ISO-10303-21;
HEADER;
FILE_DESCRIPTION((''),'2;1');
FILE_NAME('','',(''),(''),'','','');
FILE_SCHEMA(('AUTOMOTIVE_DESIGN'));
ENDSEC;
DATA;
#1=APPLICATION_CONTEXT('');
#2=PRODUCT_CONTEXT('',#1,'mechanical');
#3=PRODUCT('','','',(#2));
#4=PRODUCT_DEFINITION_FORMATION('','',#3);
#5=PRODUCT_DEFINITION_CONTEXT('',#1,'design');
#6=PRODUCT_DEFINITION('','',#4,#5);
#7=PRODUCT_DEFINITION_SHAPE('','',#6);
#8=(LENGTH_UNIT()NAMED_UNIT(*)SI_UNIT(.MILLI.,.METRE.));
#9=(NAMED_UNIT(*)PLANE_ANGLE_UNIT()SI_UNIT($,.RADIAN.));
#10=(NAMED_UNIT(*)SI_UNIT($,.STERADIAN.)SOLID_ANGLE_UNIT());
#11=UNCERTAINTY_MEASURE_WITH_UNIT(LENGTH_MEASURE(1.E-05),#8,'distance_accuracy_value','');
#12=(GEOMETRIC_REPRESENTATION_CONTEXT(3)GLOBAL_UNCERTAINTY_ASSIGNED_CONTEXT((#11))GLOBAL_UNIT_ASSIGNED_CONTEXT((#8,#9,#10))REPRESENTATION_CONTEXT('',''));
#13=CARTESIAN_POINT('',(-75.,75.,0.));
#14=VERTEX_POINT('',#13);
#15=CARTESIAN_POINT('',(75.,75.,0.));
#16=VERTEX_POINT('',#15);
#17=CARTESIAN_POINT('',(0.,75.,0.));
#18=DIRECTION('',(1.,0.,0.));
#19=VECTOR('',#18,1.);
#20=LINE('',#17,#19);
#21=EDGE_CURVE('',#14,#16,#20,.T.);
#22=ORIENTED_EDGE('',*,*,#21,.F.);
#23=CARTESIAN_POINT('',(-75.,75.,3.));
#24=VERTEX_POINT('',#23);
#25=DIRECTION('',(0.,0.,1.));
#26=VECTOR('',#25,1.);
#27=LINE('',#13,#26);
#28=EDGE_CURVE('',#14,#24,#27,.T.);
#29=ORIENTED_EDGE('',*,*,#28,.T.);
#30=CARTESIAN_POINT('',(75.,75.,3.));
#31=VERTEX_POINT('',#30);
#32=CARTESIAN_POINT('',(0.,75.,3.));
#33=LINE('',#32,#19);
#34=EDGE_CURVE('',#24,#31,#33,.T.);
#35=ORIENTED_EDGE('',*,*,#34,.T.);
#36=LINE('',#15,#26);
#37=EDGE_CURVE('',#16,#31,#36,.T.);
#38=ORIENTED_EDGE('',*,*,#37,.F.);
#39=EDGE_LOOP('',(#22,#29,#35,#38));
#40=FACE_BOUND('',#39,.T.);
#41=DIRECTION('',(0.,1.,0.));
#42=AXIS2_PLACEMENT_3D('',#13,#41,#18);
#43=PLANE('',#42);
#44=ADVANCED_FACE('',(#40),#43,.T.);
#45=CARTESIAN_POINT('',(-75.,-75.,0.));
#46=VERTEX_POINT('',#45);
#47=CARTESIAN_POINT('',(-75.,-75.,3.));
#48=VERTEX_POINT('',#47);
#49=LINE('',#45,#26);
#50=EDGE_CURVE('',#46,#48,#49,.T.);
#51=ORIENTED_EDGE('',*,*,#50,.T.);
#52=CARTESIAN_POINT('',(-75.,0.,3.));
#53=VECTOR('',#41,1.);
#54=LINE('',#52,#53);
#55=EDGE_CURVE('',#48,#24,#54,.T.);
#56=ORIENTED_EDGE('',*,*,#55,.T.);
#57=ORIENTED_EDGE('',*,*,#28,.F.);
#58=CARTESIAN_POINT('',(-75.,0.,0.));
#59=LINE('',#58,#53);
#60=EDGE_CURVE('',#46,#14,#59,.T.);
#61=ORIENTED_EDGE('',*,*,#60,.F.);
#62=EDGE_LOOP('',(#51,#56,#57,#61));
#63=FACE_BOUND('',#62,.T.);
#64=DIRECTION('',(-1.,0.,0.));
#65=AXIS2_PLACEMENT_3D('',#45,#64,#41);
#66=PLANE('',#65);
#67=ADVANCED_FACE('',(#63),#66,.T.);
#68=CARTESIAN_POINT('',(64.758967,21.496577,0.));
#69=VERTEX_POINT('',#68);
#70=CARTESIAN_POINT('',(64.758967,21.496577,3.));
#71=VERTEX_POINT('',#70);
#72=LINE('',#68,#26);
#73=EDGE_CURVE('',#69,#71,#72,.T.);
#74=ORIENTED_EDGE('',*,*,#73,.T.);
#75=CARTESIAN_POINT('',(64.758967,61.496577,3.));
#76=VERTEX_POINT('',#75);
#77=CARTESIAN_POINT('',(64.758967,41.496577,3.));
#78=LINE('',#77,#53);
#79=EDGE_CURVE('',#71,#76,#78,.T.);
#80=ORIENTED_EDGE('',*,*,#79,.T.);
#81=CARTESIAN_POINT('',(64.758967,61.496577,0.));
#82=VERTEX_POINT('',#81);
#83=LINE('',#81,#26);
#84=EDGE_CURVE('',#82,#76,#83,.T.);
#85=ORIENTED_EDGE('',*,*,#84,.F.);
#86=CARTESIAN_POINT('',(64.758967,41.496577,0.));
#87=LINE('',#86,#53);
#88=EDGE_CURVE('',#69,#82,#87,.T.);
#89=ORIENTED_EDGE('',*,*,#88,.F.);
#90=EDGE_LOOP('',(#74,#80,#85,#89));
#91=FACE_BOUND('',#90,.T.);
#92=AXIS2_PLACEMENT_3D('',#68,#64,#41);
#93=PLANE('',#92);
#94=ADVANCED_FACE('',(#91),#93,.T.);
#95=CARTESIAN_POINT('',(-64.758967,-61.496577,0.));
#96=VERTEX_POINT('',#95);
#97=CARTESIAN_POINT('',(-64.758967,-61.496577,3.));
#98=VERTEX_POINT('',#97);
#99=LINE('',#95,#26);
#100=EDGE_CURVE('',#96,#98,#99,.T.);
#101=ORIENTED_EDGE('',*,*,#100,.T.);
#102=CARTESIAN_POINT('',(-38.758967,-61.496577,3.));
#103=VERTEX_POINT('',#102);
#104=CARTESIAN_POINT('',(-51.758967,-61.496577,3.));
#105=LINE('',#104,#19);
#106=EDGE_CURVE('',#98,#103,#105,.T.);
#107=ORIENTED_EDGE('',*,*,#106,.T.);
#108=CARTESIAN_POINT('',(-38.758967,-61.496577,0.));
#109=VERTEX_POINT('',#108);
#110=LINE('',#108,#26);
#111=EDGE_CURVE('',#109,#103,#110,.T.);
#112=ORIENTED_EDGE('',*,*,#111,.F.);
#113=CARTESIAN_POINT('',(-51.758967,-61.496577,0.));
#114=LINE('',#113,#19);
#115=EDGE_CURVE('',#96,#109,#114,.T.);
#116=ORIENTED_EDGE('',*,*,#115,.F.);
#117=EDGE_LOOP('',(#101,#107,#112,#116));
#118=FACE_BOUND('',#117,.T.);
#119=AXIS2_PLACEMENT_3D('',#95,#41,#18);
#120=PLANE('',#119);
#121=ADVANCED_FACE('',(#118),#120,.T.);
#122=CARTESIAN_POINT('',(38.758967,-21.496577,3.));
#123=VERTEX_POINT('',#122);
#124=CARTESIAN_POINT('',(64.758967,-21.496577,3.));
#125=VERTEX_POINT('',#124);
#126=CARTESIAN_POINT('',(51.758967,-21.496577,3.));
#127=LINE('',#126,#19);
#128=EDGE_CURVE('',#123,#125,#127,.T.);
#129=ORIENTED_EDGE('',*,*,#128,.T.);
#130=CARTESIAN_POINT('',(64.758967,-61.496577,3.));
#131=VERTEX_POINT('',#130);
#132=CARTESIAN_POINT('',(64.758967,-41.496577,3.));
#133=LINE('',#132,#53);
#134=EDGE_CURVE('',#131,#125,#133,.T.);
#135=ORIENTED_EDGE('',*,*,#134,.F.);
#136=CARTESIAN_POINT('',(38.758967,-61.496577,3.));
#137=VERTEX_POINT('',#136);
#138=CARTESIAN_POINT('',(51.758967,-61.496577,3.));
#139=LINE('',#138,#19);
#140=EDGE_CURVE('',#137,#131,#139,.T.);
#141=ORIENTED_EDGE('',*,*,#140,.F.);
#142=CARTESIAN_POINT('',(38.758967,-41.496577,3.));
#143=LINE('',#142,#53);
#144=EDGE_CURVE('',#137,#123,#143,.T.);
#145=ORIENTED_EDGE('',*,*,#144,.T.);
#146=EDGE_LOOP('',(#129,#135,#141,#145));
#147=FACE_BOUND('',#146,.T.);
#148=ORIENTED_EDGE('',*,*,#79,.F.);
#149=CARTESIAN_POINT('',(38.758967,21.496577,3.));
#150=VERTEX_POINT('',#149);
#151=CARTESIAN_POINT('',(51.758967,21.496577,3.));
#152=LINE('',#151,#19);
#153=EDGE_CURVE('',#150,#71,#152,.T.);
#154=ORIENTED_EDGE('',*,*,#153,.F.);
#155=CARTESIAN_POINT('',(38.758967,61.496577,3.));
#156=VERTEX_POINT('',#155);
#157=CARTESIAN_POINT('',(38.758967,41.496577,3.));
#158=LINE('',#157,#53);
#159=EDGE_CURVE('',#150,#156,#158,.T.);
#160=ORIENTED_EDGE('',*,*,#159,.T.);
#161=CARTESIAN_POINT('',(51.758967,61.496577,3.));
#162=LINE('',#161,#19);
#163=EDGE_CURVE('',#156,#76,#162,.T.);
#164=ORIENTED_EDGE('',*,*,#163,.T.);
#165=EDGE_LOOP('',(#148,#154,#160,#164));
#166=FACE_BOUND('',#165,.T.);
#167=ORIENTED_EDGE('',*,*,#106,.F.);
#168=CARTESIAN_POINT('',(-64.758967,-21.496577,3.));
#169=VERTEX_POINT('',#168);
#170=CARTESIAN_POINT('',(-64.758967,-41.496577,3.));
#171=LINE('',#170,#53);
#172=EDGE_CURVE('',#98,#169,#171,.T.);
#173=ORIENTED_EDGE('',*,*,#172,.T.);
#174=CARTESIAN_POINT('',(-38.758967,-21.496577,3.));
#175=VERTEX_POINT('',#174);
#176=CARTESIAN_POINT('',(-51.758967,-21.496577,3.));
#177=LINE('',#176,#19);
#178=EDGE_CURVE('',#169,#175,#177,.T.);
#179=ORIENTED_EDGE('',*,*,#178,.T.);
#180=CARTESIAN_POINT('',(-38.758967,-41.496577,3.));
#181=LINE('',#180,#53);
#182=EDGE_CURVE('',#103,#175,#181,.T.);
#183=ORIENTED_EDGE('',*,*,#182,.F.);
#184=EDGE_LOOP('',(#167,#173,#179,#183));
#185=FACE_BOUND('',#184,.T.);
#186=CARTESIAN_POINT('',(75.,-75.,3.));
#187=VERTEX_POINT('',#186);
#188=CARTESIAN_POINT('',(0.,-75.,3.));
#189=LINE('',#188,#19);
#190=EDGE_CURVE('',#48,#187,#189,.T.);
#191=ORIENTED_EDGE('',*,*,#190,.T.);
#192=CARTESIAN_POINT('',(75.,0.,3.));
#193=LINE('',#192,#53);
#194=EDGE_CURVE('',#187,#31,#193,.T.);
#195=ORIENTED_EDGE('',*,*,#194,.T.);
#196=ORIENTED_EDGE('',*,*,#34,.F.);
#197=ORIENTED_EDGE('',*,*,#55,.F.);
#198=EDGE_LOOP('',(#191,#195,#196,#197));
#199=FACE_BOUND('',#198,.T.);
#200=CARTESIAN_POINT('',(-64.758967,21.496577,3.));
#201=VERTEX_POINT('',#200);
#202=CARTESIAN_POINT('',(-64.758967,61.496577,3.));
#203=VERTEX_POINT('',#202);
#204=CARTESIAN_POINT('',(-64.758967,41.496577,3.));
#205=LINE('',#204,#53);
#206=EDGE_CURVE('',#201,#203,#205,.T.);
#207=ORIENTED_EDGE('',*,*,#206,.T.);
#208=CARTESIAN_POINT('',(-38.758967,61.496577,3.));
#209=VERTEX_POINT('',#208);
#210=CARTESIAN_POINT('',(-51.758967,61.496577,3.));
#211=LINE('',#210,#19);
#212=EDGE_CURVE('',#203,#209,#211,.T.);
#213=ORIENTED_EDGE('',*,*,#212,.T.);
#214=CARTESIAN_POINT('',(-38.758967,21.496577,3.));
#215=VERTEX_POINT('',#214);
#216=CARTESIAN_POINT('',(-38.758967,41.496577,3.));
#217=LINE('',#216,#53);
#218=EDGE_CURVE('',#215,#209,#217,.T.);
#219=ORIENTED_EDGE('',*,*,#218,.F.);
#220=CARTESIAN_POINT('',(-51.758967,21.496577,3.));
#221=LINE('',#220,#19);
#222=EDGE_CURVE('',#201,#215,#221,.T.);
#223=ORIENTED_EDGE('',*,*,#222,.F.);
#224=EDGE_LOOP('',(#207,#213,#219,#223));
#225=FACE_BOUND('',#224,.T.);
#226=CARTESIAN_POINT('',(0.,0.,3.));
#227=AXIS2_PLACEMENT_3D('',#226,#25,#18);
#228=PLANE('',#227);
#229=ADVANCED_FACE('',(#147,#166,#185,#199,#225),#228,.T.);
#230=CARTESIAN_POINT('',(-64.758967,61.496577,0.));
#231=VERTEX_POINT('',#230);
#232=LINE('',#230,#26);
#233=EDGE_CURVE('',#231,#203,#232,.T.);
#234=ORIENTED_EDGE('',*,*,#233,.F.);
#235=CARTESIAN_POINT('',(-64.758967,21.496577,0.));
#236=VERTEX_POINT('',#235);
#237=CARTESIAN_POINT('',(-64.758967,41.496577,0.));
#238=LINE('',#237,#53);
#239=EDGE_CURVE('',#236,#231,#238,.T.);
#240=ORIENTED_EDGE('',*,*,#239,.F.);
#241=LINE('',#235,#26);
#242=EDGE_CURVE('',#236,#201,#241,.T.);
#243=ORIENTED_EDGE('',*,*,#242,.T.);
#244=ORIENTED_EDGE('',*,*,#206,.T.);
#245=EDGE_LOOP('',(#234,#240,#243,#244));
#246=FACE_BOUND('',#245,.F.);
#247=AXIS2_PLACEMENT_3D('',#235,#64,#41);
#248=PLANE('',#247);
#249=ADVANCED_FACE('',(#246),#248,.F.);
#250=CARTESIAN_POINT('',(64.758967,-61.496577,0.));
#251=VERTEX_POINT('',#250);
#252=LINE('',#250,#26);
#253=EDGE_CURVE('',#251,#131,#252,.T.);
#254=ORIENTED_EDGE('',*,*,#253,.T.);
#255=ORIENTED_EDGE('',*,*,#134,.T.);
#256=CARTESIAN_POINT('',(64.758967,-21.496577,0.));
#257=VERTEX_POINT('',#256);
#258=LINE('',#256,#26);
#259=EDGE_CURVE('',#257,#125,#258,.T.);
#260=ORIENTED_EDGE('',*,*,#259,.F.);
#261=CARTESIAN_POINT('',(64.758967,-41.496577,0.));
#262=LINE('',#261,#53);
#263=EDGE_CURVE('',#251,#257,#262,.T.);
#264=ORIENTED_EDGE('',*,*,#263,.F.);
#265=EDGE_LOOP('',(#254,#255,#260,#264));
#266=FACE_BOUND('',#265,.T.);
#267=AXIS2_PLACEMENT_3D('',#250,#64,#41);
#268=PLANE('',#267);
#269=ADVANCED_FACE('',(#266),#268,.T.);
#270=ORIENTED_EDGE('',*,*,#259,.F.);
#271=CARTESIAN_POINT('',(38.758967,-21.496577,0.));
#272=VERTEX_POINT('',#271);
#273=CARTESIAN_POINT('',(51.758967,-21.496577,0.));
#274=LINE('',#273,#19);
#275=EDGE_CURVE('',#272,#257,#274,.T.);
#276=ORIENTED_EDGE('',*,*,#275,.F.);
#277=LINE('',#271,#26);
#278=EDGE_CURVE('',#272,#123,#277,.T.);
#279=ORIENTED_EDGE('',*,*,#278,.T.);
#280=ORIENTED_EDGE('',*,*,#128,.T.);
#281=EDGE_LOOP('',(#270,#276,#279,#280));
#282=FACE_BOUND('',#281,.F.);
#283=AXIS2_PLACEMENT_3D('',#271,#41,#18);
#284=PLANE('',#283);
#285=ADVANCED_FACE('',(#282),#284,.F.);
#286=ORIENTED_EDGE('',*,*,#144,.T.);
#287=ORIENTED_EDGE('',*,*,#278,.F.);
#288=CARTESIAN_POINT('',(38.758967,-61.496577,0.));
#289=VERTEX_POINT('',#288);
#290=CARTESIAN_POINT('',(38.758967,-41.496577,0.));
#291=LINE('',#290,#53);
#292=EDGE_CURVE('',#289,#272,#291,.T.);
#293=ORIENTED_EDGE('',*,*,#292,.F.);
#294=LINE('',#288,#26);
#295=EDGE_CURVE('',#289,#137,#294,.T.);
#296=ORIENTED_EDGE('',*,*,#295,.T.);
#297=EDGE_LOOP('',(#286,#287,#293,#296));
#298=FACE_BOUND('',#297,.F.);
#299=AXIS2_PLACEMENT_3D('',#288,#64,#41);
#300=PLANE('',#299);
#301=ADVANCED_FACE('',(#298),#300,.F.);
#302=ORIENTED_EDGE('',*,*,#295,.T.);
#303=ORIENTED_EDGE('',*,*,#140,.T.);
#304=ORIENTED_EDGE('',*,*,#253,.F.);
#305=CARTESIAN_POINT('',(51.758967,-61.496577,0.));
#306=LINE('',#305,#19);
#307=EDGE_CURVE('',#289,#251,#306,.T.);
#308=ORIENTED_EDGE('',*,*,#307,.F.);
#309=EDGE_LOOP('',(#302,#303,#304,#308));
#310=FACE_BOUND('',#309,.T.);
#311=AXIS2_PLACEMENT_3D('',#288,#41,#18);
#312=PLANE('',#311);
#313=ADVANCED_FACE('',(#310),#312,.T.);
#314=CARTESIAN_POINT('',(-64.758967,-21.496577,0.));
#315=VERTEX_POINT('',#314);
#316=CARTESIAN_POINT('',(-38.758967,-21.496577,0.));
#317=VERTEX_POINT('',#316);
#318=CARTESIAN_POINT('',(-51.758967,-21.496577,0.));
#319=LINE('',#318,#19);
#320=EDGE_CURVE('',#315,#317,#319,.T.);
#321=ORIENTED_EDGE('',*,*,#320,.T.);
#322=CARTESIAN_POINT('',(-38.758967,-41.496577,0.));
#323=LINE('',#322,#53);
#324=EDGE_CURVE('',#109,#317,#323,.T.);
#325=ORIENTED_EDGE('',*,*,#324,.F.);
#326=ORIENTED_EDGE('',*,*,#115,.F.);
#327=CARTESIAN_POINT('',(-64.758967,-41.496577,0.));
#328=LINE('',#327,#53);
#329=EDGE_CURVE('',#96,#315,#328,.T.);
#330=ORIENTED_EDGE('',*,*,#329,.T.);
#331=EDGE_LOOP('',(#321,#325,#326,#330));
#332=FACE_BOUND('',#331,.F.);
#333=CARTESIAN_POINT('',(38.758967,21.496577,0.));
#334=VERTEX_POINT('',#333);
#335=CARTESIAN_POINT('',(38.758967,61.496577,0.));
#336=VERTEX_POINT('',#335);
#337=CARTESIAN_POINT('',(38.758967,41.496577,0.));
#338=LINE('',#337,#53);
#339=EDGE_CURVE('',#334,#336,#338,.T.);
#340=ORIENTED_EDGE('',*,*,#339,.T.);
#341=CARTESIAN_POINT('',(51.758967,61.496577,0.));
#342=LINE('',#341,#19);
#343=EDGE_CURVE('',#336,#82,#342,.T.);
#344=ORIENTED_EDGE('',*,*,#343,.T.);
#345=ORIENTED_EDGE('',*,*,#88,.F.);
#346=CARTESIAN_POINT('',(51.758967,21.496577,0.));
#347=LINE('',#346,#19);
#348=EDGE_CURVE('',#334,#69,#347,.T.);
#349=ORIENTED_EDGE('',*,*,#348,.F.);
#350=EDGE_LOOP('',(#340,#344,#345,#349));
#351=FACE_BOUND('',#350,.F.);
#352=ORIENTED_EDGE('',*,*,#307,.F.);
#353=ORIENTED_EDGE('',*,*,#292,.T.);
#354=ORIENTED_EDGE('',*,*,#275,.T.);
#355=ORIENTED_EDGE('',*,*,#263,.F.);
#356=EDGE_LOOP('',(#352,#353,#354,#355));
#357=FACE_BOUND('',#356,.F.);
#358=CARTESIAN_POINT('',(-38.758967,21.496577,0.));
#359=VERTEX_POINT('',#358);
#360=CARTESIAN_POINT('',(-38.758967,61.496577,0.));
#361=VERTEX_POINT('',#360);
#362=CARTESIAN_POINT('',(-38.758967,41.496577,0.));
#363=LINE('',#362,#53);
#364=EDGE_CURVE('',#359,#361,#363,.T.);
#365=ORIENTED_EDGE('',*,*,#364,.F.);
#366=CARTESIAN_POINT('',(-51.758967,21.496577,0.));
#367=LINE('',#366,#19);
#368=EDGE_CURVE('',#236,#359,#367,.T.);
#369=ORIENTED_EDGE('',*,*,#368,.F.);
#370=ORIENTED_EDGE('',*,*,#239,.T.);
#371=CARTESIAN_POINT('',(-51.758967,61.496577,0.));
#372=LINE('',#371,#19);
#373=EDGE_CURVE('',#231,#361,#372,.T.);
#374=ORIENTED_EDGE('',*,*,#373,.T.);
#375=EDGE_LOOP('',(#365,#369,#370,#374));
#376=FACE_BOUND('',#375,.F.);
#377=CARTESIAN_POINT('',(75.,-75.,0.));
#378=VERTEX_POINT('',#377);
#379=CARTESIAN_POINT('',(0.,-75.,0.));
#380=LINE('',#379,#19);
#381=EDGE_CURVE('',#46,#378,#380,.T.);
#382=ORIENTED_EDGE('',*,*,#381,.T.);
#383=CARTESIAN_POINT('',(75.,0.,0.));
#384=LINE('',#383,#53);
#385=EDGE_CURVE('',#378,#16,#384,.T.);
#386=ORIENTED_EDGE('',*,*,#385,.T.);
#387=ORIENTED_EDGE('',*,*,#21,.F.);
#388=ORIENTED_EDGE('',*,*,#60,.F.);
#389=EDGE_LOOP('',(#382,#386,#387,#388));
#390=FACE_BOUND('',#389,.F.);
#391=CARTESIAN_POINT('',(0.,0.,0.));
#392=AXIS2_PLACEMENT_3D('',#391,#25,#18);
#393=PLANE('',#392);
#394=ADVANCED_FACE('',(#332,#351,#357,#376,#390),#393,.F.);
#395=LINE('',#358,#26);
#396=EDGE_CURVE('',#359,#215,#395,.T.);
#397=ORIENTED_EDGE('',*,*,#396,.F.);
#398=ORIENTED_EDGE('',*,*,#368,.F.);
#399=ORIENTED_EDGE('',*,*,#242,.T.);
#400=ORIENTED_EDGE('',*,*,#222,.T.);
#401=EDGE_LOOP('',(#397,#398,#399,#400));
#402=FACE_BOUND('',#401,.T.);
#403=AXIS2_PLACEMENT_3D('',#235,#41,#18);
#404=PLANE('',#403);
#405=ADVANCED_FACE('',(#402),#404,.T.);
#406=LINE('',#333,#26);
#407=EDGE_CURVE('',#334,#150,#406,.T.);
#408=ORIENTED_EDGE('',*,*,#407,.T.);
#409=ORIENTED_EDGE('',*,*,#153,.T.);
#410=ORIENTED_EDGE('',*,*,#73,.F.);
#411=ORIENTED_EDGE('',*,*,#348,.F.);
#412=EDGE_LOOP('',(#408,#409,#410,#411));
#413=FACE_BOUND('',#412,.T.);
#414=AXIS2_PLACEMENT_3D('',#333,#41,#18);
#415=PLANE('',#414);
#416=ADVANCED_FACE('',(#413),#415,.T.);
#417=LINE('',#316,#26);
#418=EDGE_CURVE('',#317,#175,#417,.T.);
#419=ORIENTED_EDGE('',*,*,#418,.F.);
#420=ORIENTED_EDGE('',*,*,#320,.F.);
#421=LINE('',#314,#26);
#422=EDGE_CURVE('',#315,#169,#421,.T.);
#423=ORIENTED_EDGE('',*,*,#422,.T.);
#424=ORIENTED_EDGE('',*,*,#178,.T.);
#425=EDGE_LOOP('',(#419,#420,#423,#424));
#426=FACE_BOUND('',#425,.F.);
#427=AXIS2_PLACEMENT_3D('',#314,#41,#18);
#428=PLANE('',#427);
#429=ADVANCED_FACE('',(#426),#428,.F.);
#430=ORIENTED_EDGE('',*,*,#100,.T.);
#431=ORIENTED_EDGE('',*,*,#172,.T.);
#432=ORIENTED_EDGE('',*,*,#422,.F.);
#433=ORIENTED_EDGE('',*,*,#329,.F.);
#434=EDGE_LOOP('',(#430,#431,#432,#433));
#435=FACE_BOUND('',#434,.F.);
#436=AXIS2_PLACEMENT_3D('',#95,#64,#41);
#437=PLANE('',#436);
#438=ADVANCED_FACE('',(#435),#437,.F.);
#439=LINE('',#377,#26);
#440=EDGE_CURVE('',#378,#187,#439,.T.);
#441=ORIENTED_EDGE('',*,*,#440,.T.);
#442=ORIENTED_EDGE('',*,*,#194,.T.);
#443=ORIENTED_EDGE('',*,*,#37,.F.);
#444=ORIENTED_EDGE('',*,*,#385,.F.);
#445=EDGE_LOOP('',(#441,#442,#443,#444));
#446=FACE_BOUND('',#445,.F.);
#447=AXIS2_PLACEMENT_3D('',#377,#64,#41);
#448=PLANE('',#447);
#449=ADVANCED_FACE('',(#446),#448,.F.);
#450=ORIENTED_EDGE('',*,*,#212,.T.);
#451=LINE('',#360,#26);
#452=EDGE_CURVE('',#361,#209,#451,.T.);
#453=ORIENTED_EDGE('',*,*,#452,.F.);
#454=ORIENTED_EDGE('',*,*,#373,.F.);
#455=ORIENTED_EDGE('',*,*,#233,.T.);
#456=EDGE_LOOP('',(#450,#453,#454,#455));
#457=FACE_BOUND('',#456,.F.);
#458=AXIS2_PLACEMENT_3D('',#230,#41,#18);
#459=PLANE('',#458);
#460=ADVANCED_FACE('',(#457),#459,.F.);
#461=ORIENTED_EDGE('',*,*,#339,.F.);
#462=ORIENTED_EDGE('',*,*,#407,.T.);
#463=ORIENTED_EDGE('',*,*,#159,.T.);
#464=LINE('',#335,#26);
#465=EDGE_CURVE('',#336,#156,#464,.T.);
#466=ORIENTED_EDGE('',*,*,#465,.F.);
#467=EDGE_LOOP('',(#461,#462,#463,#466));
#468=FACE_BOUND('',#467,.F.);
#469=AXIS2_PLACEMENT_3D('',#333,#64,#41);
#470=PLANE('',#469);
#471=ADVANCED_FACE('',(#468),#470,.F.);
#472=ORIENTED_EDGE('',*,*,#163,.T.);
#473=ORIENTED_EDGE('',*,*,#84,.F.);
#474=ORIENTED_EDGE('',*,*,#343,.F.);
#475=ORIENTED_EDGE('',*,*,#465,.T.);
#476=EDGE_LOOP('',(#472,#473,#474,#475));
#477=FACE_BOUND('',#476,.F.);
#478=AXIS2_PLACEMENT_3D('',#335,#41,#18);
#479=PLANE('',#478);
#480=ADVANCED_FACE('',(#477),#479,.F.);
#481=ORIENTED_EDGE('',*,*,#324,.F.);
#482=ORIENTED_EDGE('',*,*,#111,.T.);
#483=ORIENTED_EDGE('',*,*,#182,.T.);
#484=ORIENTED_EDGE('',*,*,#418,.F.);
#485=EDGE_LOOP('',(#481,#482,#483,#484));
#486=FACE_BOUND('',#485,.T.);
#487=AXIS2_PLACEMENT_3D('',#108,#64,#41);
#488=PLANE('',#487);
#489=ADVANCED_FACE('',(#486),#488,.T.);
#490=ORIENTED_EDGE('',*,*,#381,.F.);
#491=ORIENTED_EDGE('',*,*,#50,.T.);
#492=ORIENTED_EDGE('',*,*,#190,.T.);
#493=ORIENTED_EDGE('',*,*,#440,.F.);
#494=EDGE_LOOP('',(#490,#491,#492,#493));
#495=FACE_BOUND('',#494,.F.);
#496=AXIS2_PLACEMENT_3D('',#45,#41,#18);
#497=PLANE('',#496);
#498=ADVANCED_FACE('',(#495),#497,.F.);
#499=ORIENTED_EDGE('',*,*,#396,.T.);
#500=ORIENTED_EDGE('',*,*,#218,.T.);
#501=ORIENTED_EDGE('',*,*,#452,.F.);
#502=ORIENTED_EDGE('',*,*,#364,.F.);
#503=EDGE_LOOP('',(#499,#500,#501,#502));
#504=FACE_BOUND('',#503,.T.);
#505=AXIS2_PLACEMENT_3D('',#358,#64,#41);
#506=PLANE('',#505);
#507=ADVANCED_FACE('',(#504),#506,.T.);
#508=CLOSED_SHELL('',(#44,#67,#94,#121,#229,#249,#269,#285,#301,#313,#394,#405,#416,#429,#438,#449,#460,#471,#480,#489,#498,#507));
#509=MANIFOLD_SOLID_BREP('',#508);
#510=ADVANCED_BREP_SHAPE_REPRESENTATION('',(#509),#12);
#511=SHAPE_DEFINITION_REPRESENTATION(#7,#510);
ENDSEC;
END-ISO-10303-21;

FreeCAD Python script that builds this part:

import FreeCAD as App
import Part
import Sketcher


def add_polygon(sketch, points):
    """Adds a closed chain of lines whose ends are joined by coincident constraints."""
    first, n = sketch.GeometryCount, len(points)
    for a, b in zip(points, points[1:] + points[:1]):
        sketch.addGeometry(Part.LineSegment(App.Vector(*a, 0), App.Vector(*b, 0)), False)
    for i in range(n):
        sketch.addConstraint(Sketcher.Constraint("Coincident", first + i, 2, first + (i + 1) % n, 1))

doc = App.newDocument("Part")
body = doc.addObject("PartDesign::Body", "Body")

# Sketch on XY plane
sketch1 = doc.addObject("Sketcher::SketchObject", "Sketch")
body.addObject(sketch1)
sketch1.AttachmentSupport = (doc.XY_Plane, [""])
sketch1.MapMode = "FlatFace"
add_polygon(sketch1, [(-75, 75), (-75, -75), (75, -75), (75, 75)])  # lines 0-3
add_polygon(sketch1, [(-38.758967, -61.496577), (-64.758967, -61.496577), (-64.758967, -21.496577), (-38.758967, -21.496577)])  # lines 4-7
add_polygon(sketch1, [(64.758967, -61.496577), (38.758967, -61.496577), (38.758967, -21.496577), (64.758967, -21.496577)])  # lines 8-11
add_polygon(sketch1, [(-38.758967, 21.496577), (-64.758967, 21.496577), (-64.758967, 61.496577), (-38.758967, 61.496577)])  # lines 12-15
add_polygon(sketch1, [(64.758967, 21.496577), (38.758967, 21.496577), (38.758967, 61.496577), (64.758967, 61.496577)])  # lines 16-19
sketch1.addConstraint([
    Sketcher.Constraint("Vertical", 0),
    Sketcher.Constraint("Horizontal", 1),
    Sketcher.Constraint("Vertical", 2),
    Sketcher.Constraint("Horizontal", 3),
    Sketcher.Constraint("Horizontal", 4),
    Sketcher.Constraint("Vertical", 5),
    Sketcher.Constraint("Horizontal", 6),
    Sketcher.Constraint("Vertical", 7),
    Sketcher.Constraint("Horizontal", 8),
    Sketcher.Constraint("Vertical", 9),
    Sketcher.Constraint("Horizontal", 10),
    Sketcher.Constraint("Vertical", 11),
    Sketcher.Constraint("Horizontal", 12),
    Sketcher.Constraint("Vertical", 13),
    Sketcher.Constraint("Horizontal", 14),
    Sketcher.Constraint("Vertical", 15),
    Sketcher.Constraint("Horizontal", 16),
    Sketcher.Constraint("Vertical", 17),
    Sketcher.Constraint("Horizontal", 18),
    Sketcher.Constraint("Vertical", 19),
    Sketcher.Constraint("Symmetric", 0, 2, 2, 2, -1, 1),
    Sketcher.Constraint("Symmetric", 10, 2, 12, 2, -1, 1),
    Sketcher.Constraint("Symmetric", 8, 2, 14, 2, -1, 1),
    Sketcher.Constraint("Symmetric", 6, 2, 16, 2, -1, 1),
    Sketcher.Constraint("Symmetric", 4, 2, 18, 2, -1, 1),
    Sketcher.Constraint("Symmetric", 7, 2, 8, 2, -2),
    Sketcher.Constraint("Symmetric", 5, 2, 10, 2, -2),
    Sketcher.Constraint("Equal", 3, 0),
    Sketcher.Constraint("DistanceX", 1, 1, 1, 2, 150.0),
    Sketcher.Constraint("DistanceX", 4, 2, 4, 1, 26.0),
    Sketcher.Constraint("DistanceY", 5, 1, 5, 2, 40.0),
    Sketcher.Constraint("DistanceX", 4, 2, -1, 1, 64.758967),
    Sketcher.Constraint("DistanceY", 4, 2, -1, 1, 61.496577),
])
pad1 = doc.addObject("PartDesign::Pad", "Pad")
body.addObject(pad1)
pad1.Profile = sketch1
pad1.Length = 3

doc.recompute()
